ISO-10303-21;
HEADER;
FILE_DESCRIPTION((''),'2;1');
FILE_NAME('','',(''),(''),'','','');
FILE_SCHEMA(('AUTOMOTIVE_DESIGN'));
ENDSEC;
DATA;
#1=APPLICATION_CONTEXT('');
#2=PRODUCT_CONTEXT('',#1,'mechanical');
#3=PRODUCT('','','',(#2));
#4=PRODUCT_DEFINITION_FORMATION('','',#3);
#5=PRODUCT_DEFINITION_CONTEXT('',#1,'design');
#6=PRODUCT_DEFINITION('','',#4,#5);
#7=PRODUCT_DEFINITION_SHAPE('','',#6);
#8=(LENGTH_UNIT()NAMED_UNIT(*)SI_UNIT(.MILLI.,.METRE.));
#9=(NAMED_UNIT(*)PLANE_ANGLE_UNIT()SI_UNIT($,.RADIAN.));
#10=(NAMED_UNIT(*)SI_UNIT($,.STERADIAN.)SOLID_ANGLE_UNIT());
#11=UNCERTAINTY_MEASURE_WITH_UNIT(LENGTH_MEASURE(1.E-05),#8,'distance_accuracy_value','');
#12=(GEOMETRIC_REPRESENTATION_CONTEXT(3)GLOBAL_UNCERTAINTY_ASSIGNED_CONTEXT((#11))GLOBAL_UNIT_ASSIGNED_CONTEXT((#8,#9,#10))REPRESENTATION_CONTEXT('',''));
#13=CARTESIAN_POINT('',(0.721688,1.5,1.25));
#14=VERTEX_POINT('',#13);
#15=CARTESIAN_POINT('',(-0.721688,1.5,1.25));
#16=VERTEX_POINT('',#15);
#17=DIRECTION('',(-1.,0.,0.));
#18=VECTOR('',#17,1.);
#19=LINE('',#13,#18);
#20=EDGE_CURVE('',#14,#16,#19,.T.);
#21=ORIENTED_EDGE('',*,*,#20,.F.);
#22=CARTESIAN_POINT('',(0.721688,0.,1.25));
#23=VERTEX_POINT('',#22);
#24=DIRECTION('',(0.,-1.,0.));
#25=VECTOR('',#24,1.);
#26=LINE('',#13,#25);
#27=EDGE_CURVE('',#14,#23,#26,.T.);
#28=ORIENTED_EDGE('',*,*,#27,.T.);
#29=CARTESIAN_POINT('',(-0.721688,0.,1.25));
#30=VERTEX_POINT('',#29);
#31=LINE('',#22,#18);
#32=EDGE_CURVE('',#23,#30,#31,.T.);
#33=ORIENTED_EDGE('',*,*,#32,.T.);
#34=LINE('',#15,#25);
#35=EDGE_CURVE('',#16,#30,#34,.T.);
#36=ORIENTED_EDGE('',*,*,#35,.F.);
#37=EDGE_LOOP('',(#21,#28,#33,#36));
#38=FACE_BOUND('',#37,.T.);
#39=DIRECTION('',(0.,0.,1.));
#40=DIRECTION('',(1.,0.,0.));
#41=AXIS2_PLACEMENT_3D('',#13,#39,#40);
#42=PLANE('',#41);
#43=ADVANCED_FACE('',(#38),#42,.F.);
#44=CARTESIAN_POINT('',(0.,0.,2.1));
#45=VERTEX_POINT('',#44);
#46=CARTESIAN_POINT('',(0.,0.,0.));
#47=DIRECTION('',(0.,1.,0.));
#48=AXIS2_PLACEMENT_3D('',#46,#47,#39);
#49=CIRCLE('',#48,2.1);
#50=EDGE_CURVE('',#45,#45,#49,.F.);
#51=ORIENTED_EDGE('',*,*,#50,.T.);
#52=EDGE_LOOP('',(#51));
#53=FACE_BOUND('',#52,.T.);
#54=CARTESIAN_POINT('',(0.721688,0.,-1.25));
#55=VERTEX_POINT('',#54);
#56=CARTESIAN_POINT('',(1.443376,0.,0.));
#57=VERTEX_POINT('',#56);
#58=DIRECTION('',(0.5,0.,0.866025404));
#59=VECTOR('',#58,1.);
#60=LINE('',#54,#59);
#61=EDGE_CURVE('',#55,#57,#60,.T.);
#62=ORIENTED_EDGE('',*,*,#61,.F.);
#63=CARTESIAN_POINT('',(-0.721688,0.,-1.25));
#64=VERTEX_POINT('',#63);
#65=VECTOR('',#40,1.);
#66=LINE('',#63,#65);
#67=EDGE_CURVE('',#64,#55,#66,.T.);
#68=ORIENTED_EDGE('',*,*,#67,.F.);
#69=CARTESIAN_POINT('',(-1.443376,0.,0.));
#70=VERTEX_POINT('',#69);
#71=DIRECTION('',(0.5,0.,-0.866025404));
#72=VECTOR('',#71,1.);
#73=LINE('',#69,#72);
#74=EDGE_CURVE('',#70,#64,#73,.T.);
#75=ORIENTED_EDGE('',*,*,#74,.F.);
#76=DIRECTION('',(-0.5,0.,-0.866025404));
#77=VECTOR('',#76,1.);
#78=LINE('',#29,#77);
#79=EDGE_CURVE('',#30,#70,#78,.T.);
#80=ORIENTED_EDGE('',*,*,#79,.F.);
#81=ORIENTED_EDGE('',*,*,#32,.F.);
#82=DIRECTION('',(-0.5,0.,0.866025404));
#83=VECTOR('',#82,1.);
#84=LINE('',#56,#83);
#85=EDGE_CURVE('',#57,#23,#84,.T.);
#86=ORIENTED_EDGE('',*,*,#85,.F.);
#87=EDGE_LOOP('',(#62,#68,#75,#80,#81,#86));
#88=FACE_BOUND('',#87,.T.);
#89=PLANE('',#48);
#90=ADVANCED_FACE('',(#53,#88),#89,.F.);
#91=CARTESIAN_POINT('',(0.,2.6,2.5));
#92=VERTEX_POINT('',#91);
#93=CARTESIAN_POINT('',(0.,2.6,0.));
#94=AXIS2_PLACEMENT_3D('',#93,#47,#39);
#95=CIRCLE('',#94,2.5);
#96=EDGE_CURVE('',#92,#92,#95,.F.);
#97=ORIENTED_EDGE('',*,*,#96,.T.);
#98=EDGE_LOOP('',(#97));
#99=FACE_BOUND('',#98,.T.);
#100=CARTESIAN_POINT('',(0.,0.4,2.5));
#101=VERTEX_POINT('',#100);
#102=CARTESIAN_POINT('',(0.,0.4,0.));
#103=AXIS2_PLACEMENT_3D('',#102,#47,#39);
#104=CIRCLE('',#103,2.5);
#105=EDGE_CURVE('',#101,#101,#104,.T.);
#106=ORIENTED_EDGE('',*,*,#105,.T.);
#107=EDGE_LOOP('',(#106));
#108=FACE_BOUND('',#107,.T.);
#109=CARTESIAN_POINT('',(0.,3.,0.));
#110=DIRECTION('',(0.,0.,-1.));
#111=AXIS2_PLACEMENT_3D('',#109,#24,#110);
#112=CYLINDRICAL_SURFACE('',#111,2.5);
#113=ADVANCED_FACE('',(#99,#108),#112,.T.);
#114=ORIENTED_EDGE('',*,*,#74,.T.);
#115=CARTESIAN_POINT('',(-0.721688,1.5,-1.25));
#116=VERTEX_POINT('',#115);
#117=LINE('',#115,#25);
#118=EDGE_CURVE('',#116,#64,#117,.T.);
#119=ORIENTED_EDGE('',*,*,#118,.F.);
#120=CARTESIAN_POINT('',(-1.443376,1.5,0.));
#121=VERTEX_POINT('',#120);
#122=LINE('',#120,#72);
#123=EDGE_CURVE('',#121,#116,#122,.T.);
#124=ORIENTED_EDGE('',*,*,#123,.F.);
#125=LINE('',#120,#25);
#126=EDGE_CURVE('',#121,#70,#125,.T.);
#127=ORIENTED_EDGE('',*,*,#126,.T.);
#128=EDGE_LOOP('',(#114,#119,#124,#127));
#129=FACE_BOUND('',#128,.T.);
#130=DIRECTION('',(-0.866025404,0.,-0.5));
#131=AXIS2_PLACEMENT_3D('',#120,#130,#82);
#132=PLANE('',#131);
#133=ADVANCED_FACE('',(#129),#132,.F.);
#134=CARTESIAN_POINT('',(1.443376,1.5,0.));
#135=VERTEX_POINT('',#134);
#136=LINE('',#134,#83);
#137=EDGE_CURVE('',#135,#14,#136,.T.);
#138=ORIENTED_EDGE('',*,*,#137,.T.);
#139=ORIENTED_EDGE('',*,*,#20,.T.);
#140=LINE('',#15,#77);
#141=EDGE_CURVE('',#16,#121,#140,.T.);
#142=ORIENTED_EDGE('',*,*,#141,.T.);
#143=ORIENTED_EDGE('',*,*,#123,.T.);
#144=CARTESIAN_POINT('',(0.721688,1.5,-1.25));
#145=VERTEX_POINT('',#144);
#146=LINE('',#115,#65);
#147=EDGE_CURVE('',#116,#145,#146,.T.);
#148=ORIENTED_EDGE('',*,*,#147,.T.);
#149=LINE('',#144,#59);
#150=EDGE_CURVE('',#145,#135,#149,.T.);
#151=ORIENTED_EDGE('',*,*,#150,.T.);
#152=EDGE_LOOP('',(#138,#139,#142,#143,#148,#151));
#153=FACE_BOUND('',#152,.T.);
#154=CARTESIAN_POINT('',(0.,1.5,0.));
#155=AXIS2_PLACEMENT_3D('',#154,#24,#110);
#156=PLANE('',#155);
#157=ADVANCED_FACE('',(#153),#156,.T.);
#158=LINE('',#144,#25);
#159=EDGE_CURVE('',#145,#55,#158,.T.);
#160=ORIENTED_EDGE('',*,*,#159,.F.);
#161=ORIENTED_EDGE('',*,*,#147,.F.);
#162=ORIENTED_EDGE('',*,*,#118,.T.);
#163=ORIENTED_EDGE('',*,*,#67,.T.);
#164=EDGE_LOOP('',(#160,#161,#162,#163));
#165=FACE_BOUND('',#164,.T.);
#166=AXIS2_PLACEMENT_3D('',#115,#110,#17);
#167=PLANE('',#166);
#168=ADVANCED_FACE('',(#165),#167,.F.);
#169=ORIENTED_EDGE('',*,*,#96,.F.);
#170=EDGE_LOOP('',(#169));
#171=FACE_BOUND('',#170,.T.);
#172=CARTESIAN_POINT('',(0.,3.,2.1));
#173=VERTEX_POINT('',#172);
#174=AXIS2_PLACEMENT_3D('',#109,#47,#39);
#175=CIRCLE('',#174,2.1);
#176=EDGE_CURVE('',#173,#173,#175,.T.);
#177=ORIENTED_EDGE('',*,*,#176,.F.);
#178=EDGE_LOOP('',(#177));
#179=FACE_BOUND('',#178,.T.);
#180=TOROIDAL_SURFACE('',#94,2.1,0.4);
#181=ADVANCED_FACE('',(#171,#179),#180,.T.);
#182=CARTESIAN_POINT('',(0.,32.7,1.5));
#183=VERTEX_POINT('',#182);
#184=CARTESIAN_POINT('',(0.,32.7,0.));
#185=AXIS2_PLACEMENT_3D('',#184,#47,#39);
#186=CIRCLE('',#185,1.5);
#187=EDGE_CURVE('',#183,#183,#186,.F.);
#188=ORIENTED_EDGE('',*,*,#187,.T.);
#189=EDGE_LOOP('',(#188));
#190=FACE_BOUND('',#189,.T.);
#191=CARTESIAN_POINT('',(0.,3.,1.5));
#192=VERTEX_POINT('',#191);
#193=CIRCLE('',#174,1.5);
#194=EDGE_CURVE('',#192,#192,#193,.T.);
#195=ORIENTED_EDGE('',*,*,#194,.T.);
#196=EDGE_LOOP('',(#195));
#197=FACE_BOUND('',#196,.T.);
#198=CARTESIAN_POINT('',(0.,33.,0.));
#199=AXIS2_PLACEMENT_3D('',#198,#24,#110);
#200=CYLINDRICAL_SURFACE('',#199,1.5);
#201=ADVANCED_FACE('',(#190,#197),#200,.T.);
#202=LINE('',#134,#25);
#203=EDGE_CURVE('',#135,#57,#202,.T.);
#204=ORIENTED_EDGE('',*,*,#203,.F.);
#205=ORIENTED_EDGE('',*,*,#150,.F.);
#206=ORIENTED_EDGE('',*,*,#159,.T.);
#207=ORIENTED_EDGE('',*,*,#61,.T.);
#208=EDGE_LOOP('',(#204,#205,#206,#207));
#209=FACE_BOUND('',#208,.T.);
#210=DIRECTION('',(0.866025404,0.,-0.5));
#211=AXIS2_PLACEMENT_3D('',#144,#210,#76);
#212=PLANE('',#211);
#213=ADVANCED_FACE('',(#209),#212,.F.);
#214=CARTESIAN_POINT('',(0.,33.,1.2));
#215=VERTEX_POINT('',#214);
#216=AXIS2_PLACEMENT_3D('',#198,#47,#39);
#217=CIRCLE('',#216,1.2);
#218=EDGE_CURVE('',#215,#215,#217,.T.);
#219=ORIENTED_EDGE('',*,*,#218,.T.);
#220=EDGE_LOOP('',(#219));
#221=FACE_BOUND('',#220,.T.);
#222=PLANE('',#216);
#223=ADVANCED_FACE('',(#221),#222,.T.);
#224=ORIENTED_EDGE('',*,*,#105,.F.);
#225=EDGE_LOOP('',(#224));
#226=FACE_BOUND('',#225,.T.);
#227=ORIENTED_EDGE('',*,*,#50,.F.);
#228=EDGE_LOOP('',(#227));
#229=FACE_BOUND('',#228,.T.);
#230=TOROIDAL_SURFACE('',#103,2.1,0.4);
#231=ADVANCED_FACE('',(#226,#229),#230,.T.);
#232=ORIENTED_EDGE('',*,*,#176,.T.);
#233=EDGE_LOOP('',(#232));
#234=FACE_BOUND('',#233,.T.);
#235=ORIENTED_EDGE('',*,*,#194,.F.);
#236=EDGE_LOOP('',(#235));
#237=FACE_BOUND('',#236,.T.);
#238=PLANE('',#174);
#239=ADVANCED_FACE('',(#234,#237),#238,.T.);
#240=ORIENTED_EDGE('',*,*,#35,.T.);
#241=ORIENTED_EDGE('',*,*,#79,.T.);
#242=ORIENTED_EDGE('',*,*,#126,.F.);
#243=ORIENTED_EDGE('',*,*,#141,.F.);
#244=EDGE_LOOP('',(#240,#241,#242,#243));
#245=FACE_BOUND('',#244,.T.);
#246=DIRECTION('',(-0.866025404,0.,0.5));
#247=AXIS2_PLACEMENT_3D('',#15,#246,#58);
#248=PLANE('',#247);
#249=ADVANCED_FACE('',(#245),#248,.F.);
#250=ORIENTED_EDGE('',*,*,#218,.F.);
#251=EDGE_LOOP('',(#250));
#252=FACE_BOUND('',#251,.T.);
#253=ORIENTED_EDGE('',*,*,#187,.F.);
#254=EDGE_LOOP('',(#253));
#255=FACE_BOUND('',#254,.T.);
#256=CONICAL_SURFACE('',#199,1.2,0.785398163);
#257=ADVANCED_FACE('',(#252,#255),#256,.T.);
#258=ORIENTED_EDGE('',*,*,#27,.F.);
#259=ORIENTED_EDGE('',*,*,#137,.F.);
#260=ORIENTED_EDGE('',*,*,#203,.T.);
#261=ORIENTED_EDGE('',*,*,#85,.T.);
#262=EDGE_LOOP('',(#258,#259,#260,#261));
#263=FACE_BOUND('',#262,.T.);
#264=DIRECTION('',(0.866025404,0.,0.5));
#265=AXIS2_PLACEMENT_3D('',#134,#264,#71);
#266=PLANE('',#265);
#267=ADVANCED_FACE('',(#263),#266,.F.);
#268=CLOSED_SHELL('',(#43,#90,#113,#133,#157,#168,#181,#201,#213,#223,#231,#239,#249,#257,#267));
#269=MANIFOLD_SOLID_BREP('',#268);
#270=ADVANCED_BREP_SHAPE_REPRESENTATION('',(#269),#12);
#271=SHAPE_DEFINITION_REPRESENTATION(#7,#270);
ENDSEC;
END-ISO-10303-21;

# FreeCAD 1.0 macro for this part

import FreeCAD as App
import Part
import Sketcher
Q = App.Units.Quantity


def edges_at(feature, points):
    """Names of the edges that pass closest to the given points."""
    edges = feature.Shape.Edges
    near = lambda p: min(range(len(edges)), key=lambda i: edges[i].distToShape(Part.Vertex(*p))[0])
    return sorted({f"Edge{near(p) + 1}" for p in points})


def add_polygon(sketch, points):
    """Adds a closed chain of lines whose ends are joined by coincident constraints."""
    first, n = sketch.GeometryCount, len(points)
    for a, b in zip(points, points[1:] + points[:1]):
        sketch.addGeometry(Part.LineSegment(App.Vector(*a, 0), App.Vector(*b, 0)), False)
    for i in range(n):
        sketch.addConstraint(Sketcher.Constraint("Coincident", first + i, 2, first + (i + 1) % n, 1))

doc = App.newDocument("Part")
body = doc.addObject("PartDesign::Body", "Body")

sketch1 = doc.addObject("Sketcher::SketchObject", "Sketch")
body.addObject(sketch1)
sketch1.AttachmentSupport = (doc.XZ_Plane, [""])
sketch1.MapMode = "FlatFace"
sketch1.addGeometry(Part.Circle(App.Vector(0, 0, 0), App.Vector(0, 0, 1), 2.5), False)
sketch1.addConstraint(Sketcher.Constraint("Coincident", 0, 3, -1, 1))
sketch1.addConstraint(Sketcher.Constraint("Diameter", 0, Q("5 mm")))
pad1 = doc.addObject("PartDesign::Pad", "Pad")
body.addObject(pad1)
pad1.Profile = sketch1
pad1.Length = 3
pad1.Reversed = True

sketch2 = doc.addObject("Sketcher::SketchObject", "Sketch001")
body.addObject(sketch2)
sketch2.AttachmentSupport = (doc.XZ_Plane, [""])
sketch2.MapMode = "FlatFace"
sketch2.AttachmentOffset = App.Placement(App.Vector(0, 0, -3), App.Rotation())
sketch2.addGeometry(Part.Circle(App.Vector(0, 0, 0), App.Vector(0, 0, 1), 1.5), False)
sketch2.addConstraint(Sketcher.Constraint("Coincident", 0, 3, -1, 1))
sketch2.addConstraint(Sketcher.Constraint("Diameter", 0, Q("3 mm")))
pad2 = doc.addObject("PartDesign::Pad", "Pad001")
body.addObject(pad2)
pad2.Profile = sketch2
pad2.Length = 30
pad2.Reversed = True
doc.recompute()

chamfer = doc.addObject("PartDesign::Chamfer", "Chamfer")
body.addObject(chamfer)
chamfer.Base = (pad2, edges_at(pad2, [(0, 33, -1.5)]))
chamfer.Size = 0.3
doc.recompute()

fillet = doc.addObject("PartDesign::Fillet", "Fillet")
body.addObject(fillet)
fillet.Base = (chamfer, edges_at(chamfer, [(0, 0, -2.5), (0, 3, -2.5)]))
fillet.Radius = 0.4

sketch3 = doc.addObject("Sketcher::SketchObject", "Sketch002")
body.addObject(sketch3)
sketch3.AttachmentSupport = (doc.XZ_Plane, [""])
sketch3.MapMode = "FlatFace"
add_polygon(sketch3, [(1.443376, 0), (0.721688, 1.25), (-0.721688, 1.25), (-1.443376, 0), (-0.721688, -1.25), (0.721688, -1.25)])
sketch3.addConstraint(Sketcher.Constraint("Horizontal", 1))
sketch3.addConstraint(Sketcher.Constraint("Horizontal", 4))
sketch3.addConstraint(Sketcher.Constraint("Symmetric", 0, 2, 3, 2, -1, 1))
sketch3.addConstraint(Sketcher.Constraint("Symmetric", 2, 2, 5, 2, -1, 1))
sketch3.addConstraint(Sketcher.Constraint("PointOnObject", 2, 2, -1))
sketch3.addConstraint(Sketcher.Constraint("Parallel", 2, 5))
sketch3.addConstraint(Sketcher.Constraint("Vertical", 1, 2, 3, 2))
sketch3.addConstraint(Sketcher.Constraint("Angle", 0, Q("120 deg")))
sketch3.addConstraint(Sketcher.Constraint("DistanceY", 3, 2, 1, 2, Q("2.5 mm")))
sketch3.addConstraint(Sketcher.Constraint("DistanceX", 1, 2, 1, 1, Q("1.443376 mm")))
pocket1 = doc.addObject("PartDesign::Pocket", "Pocket")
body.addObject(pocket1)
pocket1.Profile = sketch3
pocket1.Length = 1.5

doc.recompute()
